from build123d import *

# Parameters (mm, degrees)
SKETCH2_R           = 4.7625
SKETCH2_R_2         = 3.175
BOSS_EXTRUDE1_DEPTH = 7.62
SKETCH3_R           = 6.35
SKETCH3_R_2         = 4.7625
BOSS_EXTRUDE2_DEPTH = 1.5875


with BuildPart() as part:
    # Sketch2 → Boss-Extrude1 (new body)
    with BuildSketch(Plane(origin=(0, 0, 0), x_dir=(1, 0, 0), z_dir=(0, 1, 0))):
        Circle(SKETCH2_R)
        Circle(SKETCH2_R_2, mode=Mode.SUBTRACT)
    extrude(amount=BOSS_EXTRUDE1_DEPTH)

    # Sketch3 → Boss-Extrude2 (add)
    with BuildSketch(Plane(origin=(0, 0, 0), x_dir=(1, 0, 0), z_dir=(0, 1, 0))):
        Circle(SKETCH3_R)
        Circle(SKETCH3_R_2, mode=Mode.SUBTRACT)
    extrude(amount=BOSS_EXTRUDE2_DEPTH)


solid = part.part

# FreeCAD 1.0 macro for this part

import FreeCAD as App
import Part
import Sketcher
Q = App.Units.Quantity

doc = App.newDocument("Part")
params = doc.addObject("Spreadsheet::Sheet", "Params")
for row, (alias, value) in enumerate([
    ("sketch1_diameter", "0.25 in"),
    ("sketch1_diameter2", "0.375 in"),
    ("pad1_length", "0.3 in"),
    ("sketch2_diameter", "0.5 in"),
    ("sketch2_diameter2", "0.375 in"),
    ("pad2_length", "0.0625 in"),
], start=1):
    params.set(f"A{row}", alias)
    params.set(f"B{row}", "=" + value)
    params.setAlias(f"B{row}", alias)

body = doc.addObject("PartDesign::Body", "Body")

# Sketch on XZ plane
sketch1 = body.newObject("Sketcher::SketchObject", "Sketch")
sketch1.AttachmentSupport = (doc.getObject("XZ_Plane"), [""])
sketch1.MapMode = "FlatFace"
sketch1.addGeometry(Part.Circle(App.Vector(0, 0, 0), App.Vector(0, 0, 1), 4.8), False)
sketch1.addGeometry(Part.Circle(App.Vector(0, 0, 0), App.Vector(0, 0, 1), 3.2), False)
sketch1.addConstraint(Sketcher.Constraint("Coincident", 0, 3, -1, 1))
sketch1.addConstraint(Sketcher.Constraint("Coincident", 1, 3, -1, 1))
sketch1.addConstraint(Sketcher.Constraint("Diameter", 1, Q("0.25 in")))
sketch1.addConstraint(Sketcher.Constraint("Diameter", 0, Q("0.375 in")))
sketch1.setExpression("Constraints[2]", "Params.sketch1_diameter")
sketch1.setExpression("Constraints[3]", "Params.sketch1_diameter2")
pad1 = body.newObject("PartDesign::Pad", "Pad")
pad1.Profile = sketch1
pad1.setExpression("Length", "Params.pad1_length")
pad1.Reversed = True

# Sketch on XZ plane
sketch2 = body.newObject("Sketcher::SketchObject", "Sketch001")
sketch2.AttachmentSupport = (doc.getObject("XZ_Plane"), [""])
sketch2.MapMode = "FlatFace"
sketch2.addGeometry(Part.Circle(App.Vector(0, 0, 0), App.Vector(0, 0, 1), 6.3), False)
sketch2.addGeometry(Part.Circle(App.Vector(0, 0, 0), App.Vector(0, 0, 1), 4.8), False)
sketch2.addConstraint(Sketcher.Constraint("Coincident", 0, 3, -1, 1))
sketch2.addConstraint(Sketcher.Constraint("Coincident", 1, 3, -1, 1))
sketch2.addConstraint(Sketcher.Constraint("Diameter", 0, Q("0.5 in")))
sketch2.addConstraint(Sketcher.Constraint("Diameter", 1, Q("0.375 in")))
sketch2.setExpression("Constraints[2]", "Params.sketch2_diameter")
sketch2.setExpression("Constraints[3]", "Params.sketch2_diameter2")
pad2 = body.newObject("PartDesign::Pad", "Pad001")
pad2.Profile = sketch2
pad2.setExpression("Length", "Params.pad2_length")
pad2.Reversed = True

doc.recompute()
